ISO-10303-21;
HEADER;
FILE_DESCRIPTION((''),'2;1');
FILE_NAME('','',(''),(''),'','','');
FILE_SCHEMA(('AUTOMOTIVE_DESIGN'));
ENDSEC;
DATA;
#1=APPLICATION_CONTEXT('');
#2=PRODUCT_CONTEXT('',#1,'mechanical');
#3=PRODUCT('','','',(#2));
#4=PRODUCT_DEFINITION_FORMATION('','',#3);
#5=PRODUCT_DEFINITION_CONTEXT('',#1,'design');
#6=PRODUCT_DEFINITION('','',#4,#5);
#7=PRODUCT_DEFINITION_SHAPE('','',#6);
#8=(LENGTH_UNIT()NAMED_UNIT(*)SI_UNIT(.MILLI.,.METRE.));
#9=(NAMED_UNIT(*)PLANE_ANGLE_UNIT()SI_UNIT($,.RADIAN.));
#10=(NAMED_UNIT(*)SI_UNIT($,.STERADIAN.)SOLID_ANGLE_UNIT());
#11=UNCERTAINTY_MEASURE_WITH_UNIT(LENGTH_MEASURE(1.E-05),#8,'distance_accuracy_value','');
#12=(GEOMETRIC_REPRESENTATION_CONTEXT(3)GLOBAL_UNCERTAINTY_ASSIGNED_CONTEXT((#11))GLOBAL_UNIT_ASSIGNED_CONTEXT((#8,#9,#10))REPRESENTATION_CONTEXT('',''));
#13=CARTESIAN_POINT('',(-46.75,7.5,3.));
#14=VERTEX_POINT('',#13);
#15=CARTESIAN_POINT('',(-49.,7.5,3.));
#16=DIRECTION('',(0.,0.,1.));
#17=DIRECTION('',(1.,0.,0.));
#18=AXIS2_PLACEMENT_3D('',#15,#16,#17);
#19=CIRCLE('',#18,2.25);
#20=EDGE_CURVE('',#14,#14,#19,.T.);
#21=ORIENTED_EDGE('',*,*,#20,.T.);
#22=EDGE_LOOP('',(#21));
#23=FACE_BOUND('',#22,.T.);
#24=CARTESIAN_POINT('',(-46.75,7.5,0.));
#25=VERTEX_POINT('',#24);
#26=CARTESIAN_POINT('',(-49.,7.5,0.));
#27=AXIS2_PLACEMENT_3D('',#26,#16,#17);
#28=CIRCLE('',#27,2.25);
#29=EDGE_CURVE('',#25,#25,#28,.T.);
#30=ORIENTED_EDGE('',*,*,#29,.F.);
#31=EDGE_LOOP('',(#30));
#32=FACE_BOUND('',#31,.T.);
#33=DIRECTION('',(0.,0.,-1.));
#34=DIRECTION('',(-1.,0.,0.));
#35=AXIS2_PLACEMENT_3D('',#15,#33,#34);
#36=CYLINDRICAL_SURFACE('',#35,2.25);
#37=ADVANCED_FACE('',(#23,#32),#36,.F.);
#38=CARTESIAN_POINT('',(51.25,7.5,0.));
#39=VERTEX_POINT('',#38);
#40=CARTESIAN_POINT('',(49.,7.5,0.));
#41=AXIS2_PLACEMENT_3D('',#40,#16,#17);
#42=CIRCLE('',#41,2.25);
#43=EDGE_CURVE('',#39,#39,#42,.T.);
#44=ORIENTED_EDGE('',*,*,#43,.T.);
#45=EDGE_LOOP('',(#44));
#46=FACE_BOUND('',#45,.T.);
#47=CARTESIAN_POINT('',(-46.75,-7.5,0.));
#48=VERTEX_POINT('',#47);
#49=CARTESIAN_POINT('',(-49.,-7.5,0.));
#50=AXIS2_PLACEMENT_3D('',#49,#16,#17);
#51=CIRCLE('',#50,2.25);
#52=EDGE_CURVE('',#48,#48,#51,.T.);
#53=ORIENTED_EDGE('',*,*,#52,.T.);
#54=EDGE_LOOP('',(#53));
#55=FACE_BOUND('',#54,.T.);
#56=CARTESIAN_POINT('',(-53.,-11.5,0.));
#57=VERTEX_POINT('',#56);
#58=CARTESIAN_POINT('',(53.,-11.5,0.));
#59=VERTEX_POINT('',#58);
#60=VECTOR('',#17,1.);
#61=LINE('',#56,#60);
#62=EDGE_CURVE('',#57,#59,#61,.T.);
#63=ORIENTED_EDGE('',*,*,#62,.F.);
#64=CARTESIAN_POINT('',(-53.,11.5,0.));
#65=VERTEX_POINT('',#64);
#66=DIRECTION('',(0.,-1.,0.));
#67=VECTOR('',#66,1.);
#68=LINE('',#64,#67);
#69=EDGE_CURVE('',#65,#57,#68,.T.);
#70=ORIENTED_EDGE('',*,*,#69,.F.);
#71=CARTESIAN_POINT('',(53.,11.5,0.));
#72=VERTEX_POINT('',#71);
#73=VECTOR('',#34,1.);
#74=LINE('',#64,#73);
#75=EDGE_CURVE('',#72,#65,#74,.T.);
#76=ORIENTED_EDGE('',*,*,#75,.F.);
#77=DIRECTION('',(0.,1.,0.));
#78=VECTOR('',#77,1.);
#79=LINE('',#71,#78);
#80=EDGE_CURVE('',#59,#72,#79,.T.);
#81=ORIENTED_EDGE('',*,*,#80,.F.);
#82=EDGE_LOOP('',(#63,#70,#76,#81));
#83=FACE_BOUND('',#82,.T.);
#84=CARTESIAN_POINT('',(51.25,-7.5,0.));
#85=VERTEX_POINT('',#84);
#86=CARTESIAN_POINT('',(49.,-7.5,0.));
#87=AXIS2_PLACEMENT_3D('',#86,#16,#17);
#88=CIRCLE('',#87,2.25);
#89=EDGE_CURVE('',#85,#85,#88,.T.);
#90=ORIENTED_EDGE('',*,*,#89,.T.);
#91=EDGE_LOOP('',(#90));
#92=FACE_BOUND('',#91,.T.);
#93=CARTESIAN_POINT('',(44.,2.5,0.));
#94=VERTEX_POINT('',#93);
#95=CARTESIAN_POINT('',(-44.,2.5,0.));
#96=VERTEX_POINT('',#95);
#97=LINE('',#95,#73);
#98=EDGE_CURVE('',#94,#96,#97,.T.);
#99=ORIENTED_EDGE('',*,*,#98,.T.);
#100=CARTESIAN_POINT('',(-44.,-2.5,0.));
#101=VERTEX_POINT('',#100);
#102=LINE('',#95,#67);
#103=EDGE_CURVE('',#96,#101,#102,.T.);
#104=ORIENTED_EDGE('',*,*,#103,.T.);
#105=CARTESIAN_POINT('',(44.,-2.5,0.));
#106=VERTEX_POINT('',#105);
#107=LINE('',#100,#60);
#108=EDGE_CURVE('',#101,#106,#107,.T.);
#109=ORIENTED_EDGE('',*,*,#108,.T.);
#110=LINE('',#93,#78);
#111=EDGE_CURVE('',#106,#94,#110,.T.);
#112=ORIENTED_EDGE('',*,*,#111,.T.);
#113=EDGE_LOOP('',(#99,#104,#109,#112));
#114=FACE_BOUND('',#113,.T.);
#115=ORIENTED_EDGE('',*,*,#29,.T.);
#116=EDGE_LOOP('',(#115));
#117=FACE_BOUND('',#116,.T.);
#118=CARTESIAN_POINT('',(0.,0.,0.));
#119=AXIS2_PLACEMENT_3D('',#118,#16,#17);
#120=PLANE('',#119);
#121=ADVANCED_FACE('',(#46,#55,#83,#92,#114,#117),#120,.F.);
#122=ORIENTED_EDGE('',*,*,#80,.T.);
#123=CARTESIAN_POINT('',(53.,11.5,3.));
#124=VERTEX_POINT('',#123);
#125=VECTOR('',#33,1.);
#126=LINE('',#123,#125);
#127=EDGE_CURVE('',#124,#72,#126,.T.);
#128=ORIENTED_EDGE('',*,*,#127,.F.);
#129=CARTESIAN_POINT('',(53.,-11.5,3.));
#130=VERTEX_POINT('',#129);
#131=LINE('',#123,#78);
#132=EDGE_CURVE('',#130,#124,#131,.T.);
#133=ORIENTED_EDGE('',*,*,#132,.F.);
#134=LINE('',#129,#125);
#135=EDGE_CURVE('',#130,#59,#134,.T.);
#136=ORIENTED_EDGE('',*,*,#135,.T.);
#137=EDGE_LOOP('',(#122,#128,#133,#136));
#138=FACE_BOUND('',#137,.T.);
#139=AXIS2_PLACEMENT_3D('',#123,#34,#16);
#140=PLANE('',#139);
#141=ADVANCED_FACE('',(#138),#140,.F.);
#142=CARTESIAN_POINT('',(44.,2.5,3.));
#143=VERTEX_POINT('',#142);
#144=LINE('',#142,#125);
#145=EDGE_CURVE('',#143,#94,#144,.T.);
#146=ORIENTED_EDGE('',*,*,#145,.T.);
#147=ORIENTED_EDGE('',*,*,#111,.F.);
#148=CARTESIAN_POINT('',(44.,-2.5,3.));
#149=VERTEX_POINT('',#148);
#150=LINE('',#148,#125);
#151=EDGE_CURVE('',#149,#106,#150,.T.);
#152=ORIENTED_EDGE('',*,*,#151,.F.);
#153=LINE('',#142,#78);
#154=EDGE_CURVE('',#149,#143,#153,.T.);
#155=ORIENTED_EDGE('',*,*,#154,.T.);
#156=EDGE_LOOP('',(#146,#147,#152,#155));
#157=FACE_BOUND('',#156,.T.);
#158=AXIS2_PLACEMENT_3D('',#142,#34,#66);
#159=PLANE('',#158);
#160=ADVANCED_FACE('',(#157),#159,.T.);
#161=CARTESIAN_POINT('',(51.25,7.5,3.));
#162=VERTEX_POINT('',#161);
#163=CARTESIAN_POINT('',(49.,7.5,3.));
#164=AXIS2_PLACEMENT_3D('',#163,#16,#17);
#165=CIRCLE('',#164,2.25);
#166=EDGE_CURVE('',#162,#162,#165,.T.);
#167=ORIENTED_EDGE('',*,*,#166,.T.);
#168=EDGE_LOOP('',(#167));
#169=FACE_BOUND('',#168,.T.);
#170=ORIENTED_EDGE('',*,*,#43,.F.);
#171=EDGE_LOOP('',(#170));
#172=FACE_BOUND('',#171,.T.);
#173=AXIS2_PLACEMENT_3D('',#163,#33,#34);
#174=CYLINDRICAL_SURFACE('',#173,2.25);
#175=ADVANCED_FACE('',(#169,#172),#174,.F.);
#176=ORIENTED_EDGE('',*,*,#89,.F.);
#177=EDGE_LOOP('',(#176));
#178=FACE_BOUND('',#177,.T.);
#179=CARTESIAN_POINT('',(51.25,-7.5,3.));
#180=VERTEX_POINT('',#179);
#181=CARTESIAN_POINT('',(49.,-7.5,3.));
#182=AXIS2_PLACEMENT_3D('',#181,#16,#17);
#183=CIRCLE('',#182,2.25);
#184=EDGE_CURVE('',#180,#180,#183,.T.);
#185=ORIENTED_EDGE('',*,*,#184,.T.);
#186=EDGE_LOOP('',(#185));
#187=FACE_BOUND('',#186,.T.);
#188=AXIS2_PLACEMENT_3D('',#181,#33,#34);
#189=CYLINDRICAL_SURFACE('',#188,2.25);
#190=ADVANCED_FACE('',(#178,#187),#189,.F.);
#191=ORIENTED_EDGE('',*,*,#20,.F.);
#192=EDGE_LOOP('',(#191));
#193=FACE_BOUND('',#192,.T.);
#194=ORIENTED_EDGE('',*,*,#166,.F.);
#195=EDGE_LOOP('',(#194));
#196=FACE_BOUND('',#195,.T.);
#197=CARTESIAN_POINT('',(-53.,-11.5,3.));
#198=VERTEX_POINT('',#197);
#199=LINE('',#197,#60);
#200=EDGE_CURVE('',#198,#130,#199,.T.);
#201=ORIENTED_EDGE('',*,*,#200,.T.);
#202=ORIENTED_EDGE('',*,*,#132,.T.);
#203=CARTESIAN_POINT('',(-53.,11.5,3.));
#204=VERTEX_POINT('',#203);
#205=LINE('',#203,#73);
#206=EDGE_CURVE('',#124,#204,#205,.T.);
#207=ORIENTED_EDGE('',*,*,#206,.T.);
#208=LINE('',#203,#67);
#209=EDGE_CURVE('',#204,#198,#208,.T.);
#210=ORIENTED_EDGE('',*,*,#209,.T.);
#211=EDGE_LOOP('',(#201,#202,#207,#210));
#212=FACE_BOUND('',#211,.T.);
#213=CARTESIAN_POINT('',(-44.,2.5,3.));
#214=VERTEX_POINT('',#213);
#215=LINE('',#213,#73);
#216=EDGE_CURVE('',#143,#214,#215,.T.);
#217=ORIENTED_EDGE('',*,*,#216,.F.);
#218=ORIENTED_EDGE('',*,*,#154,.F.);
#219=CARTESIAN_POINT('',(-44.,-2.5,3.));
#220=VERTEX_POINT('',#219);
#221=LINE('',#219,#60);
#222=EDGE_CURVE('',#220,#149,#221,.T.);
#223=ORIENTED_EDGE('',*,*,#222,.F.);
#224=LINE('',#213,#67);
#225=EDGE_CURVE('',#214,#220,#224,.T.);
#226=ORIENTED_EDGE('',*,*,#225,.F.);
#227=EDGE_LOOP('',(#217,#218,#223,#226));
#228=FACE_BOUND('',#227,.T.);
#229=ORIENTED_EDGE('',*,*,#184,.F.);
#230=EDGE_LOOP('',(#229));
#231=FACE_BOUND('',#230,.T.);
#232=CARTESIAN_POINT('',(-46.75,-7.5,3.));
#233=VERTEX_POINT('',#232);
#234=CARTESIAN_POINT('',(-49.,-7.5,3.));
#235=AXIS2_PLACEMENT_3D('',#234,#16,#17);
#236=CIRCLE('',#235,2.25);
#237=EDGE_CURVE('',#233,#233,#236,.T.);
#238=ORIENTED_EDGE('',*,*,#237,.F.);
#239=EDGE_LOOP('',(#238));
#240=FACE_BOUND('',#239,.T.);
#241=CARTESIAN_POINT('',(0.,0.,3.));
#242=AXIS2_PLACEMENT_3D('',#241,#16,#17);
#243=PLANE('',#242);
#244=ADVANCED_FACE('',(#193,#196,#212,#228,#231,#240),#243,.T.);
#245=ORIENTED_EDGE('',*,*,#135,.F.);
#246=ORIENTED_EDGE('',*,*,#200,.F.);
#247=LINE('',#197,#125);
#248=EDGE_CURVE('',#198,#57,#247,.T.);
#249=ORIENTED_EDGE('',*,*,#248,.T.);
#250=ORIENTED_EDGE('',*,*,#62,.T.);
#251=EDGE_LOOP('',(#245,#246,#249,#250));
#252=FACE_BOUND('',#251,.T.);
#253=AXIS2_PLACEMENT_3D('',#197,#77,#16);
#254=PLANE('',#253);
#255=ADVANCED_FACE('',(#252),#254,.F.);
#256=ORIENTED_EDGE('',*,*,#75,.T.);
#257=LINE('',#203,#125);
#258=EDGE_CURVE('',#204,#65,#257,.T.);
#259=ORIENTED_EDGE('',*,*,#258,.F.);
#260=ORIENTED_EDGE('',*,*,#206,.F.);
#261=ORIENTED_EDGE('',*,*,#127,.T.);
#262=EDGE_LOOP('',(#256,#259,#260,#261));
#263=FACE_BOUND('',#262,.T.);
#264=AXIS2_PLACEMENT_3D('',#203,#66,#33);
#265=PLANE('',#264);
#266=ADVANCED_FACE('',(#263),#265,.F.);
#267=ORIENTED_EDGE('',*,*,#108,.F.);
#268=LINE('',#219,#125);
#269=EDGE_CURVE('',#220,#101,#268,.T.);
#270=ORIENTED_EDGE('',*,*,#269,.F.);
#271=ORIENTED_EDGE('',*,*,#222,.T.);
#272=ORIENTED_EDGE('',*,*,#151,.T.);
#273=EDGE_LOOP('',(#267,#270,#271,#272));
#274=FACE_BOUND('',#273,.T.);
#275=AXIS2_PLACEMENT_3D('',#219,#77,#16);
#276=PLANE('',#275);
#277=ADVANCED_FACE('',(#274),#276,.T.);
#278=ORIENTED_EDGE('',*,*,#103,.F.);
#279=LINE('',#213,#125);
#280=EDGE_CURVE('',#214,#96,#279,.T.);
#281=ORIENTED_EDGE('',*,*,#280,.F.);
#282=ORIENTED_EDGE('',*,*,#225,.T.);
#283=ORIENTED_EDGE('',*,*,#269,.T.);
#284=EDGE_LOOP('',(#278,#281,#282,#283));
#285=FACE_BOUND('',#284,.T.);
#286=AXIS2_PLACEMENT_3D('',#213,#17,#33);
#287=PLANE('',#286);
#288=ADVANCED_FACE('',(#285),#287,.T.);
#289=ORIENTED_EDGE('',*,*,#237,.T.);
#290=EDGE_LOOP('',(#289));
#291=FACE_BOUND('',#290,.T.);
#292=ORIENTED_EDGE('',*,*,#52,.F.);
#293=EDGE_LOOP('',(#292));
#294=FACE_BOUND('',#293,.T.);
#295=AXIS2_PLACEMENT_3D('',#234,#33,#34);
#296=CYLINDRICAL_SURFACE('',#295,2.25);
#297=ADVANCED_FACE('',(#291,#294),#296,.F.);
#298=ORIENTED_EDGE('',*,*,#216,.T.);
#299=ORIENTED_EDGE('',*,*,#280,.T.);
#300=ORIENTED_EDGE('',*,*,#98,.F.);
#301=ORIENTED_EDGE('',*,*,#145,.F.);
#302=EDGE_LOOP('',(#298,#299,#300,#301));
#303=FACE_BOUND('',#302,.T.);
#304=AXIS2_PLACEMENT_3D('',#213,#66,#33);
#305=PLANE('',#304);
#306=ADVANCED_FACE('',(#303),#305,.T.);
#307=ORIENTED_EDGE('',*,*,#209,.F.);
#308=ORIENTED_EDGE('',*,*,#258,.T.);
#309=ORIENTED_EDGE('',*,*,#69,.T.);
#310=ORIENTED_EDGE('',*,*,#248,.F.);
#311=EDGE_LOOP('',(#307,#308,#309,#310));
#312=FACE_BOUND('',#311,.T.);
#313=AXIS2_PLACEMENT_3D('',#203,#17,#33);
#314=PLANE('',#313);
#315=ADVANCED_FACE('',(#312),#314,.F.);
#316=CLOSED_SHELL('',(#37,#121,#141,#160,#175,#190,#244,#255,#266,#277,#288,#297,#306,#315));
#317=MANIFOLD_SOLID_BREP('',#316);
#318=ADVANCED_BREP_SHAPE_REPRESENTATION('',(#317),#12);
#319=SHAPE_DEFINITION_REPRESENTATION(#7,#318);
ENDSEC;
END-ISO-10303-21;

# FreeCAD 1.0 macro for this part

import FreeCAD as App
import Part
import Sketcher
from FreeCAD import Vector
Q = App.Units.Quantity


def add_polygon(sketch, points):
    """Adds a closed chain of lines whose ends are joined by coincident constraints."""
    first, n = sketch.GeometryCount, len(points)
    for a, b in zip(points, points[1:] + points[:1]):
        sketch.addGeometry(Part.LineSegment(App.Vector(*a, 0), App.Vector(*b, 0)), False)
    for i in range(n):
        sketch.addConstraint(Sketcher.Constraint("Coincident", first + i, 2, first + (i + 1) % n, 1))

doc = App.newDocument("Part")
params = doc.addObject("Spreadsheet::Sheet", "Params")
for row, (alias, value) in enumerate([
    ("sketch1_diameter", "4.5 mm"),
    ("sketch1_width", "106 mm"),
    ("sketch1_width2", "88 mm"),
    ("sketch1_height", "23 mm"),
    ("sketch1_height2", "5 mm"),
    ("pad1_length", "3 mm"),
], start=1):
    params.set(f"A{row}", alias)
    params.set(f"B{row}", "=" + value)
    params.setAlias(f"B{row}", alias)

body = doc.addObject("PartDesign::Body", "Body")

# Sketch on XY plane
sketch1 = body.newObject("Sketcher::SketchObject", "Sketch")
sketch1.AttachmentSupport = (doc.getObject("XY_Plane"), [""])
sketch1.MapMode = "FlatFace"
add_polygon(sketch1, [(-53, 11.5), (-53, -11.5), (53, -11.5), (53, 11.5)])  # lines 0-3
sketch1.addGeometry(Part.Circle(Vector(-49, -7.5, 0), Vector(0, 0, 1), 2.25), False)  # 4
sketch1.addGeometry(Part.Circle(Vector(49, -7.5, 0), Vector(0, 0, 1), 2.25), False)  # 5
sketch1.addGeometry(Part.Circle(Vector(-49, 7.5, 0), Vector(0, 0, 1), 2.25), False)  # 6
add_polygon(sketch1, [(44, -2.5), (-44, -2.5), (-44, 2.5), (44, 2.5)])  # lines 7-10
sketch1.addGeometry(Part.Circle(Vector(49, 7.5, 0), Vector(0, 0, 1), 2.25), False)  # 11
sketch1.addConstraint([
    Sketcher.Constraint("Vertical", 0),
    Sketcher.Constraint("Horizontal", 1),
    Sketcher.Constraint("Vertical", 2),
    Sketcher.Constraint("Horizontal", 3),
    Sketcher.Constraint("Horizontal", 7),
    Sketcher.Constraint("Vertical", 8),
    Sketcher.Constraint("Horizontal", 9),
    Sketcher.Constraint("Vertical", 10),
    Sketcher.Constraint("Equal", 4, 5),
    Sketcher.Constraint("Equal", 5, 6),
    Sketcher.Constraint("Equal", 6, 11),
    Sketcher.Constraint("Symmetric", 5, 3, 6, 3, -1, 1),
    Sketcher.Constraint("Symmetric", 4, 3, 11, 3, -1, 1),
    Sketcher.Constraint("Symmetric", 0, 2, 2, 2, -1, 1),
    Sketcher.Constraint("Symmetric", 7, 2, 9, 2, -1, 1),
    Sketcher.Constraint("Symmetric", 4, 3, 5, 3, -2),
    Sketcher.Constraint("Diameter", 4, Q("4.5 mm")),
    Sketcher.Constraint("DistanceX", 1, 1, 1, 2, Q("106 mm")),
    Sketcher.Constraint("DistanceX", 7, 2, 7, 1, Q("88 mm")),
    Sketcher.Constraint("DistanceY", 0, 2, 0, 1, Q("23 mm")),
    Sketcher.Constraint("DistanceY", 8, 1, 8, 2, Q("5 mm")),
    Sketcher.Constraint("DistanceX", 4, 3, -1, 1, Q("49 mm")),
    Sketcher.Constraint("DistanceY", 4, 3, 6, 3, Q("15 mm")),
])
sketch1.setExpression("Constraints[24]", "Params.sketch1_diameter")
sketch1.setExpression("Constraints[25]", "Params.sketch1_width")
sketch1.setExpression("Constraints[26]", "Params.sketch1_width2")
sketch1.setExpression("Constraints[27]", "Params.sketch1_height")
sketch1.setExpression("Constraints[28]", "Params.sketch1_height2")
pad1 = body.newObject("PartDesign::Pad", "Pad")
pad1.Profile = sketch1
pad1.setExpression("Length", "Params.pad1_length")

doc.recompute()
